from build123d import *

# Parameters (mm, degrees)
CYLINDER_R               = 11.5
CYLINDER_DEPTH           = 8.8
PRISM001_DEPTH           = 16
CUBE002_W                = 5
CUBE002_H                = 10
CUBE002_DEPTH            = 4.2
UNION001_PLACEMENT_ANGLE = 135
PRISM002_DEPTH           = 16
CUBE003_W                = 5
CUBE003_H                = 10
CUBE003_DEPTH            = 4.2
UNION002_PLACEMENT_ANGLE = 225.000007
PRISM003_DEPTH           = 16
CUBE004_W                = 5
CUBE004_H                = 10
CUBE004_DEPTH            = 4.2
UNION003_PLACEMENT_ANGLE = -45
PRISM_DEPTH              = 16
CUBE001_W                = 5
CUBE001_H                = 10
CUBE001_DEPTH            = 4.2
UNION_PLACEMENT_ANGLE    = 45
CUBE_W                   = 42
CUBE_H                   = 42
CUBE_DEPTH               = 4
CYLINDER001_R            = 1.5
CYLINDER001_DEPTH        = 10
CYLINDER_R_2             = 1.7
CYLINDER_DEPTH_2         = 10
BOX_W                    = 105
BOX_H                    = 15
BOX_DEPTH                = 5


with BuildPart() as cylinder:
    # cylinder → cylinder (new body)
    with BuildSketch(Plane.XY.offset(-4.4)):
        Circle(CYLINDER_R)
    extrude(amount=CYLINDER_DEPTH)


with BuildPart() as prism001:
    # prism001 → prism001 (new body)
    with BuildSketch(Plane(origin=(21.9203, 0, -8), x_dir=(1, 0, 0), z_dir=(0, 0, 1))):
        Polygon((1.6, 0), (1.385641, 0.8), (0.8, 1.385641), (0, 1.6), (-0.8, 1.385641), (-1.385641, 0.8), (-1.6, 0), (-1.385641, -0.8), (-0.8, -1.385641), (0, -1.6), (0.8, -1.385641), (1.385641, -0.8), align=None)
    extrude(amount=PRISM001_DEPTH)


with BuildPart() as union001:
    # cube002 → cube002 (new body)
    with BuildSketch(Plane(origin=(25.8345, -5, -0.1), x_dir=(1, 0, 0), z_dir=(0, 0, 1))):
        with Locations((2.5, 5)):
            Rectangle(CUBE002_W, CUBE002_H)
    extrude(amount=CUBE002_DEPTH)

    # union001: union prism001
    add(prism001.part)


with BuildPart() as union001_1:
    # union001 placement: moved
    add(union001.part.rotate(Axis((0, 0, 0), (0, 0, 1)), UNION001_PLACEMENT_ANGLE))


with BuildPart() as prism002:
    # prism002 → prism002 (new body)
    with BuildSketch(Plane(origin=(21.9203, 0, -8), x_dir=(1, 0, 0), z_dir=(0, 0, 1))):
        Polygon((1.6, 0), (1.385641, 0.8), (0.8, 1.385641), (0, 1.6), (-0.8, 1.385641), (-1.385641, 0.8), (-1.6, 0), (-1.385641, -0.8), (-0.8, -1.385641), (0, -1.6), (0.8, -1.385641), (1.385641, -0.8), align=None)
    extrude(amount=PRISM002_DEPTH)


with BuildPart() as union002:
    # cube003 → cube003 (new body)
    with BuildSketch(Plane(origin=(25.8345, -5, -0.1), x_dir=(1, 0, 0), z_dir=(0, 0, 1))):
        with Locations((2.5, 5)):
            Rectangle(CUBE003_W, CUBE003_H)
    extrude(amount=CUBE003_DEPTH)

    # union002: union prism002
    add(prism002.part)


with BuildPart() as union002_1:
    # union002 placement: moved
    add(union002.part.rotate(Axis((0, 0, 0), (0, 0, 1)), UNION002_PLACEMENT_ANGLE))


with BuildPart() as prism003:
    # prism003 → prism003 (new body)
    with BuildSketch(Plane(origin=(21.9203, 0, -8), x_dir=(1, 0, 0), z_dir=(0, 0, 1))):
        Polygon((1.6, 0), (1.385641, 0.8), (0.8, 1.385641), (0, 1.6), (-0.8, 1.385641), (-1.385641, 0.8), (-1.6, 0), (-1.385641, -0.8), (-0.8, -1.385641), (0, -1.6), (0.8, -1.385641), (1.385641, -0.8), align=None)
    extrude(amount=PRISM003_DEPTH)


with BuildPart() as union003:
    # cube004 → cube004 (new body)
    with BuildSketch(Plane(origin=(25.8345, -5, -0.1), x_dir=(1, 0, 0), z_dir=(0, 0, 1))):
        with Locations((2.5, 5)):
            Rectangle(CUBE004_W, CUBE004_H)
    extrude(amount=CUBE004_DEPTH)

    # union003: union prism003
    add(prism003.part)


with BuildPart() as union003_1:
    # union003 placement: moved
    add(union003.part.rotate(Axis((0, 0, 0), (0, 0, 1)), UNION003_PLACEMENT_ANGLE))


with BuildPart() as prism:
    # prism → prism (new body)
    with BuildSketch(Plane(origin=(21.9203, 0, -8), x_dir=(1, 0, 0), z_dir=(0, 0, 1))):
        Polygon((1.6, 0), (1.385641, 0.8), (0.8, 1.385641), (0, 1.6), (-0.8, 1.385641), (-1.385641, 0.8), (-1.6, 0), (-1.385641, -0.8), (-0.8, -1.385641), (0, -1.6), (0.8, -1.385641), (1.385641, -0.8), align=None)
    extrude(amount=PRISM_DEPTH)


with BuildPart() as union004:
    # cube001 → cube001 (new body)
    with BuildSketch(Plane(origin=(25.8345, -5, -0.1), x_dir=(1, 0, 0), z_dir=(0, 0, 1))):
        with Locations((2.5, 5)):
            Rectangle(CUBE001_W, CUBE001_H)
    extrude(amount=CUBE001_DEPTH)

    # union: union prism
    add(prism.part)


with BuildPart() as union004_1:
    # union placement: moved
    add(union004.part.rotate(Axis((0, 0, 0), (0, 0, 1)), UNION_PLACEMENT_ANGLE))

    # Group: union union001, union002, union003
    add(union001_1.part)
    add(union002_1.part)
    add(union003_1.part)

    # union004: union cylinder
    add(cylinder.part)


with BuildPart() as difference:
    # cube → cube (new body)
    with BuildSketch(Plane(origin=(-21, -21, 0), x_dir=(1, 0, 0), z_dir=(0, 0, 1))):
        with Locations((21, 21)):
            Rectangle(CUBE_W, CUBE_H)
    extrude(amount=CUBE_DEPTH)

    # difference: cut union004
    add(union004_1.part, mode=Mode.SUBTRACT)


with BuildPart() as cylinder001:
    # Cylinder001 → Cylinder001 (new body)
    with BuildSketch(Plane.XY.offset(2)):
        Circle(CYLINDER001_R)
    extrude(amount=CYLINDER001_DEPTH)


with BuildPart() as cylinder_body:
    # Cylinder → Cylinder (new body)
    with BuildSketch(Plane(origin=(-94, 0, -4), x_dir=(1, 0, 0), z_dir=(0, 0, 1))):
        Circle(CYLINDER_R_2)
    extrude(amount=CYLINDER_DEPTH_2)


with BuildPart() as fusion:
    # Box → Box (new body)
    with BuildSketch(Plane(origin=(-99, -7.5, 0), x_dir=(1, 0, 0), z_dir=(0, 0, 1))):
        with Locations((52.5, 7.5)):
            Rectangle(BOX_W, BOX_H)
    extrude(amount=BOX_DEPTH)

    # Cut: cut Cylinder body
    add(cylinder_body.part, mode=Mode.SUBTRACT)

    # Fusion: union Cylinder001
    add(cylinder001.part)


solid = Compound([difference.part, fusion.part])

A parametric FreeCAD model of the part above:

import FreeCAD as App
import Part
import Sketcher

V = App.Vector
Q = App.Units.Quantity

doc = App.newDocument("Part")
body = doc.addObject("PartDesign::Body", "Body")

sketch1 = body.newObject("Sketcher::SketchObject", "Sketch")
sketch1.AttachmentSupport = (doc.getObject("XY_Plane"), [""])
sketch1.MapMode = "FlatFace"
sketch1.AttachmentOffset = App.Placement(V(0, 0, -4.4), App.Rotation())
sketch1.addGeometry(Part.Circle(V(0, 0, 0), V(0, 0, 1), 12), False)
sketch1.addConstraint(Sketcher.Constraint("Coincident", 0, 3, -1, 1))
sketch1.addConstraint(Sketcher.Constraint("Diameter", 0, Q("23 mm")))
pad1 = body.newObject("PartDesign::Pad", "Pad")
pad1.Profile = sketch1
pad1.Length = 8.8
body2 = doc.addObject("PartDesign::Body", "Body001")

sketch2 = body2.newObject("Sketcher::SketchObject", "Sketch001")
sketch2.AttachmentSupport = (doc.getObject("XY_Plane001"), [""])
sketch2.MapMode = "FlatFace"
sketch2.AttachmentOffset = App.Placement(V(0, 0, -8), App.Rotation())
sketch2.addGeometry(Part.LineSegment(V(23.5, 0, 0), V(23.3, 0.8, 0)), False)
sketch2.addGeometry(Part.LineSegment(V(23.3, 0.8, 0), V(22.7, 1.4, 0)), False)
sketch2.addGeometry(Part.LineSegment(V(22.7, 1.4, 0), V(21.9, 1.6, 0)), False)
sketch2.addGeometry(Part.LineSegment(V(21.9, 1.6, 0), V(21.1, 1.4, 0)), False)
sketch2.addGeometry(Part.LineSegment(V(21.1, 1.4, 0), V(20.5, 0.8, 0)), False)
sketch2.addGeometry(Part.LineSegment(V(20.5, 0.8, 0), V(20.3, 0, 0)), False)
sketch2.addGeometry(Part.LineSegment(V(20.3, 0, 0), V(20.5, -0.8, 0)), False)
sketch2.addGeometry(Part.LineSegment(V(20.5, -0.8, 0), V(21.1, -1.4, 0)), False)
sketch2.addGeometry(Part.LineSegment(V(21.1, -1.4, 0), V(21.9, -1.6, 0)), False)
sketch2.addGeometry(Part.LineSegment(V(21.9, -1.6, 0), V(22.7, -1.4, 0)), False)
sketch2.addGeometry(Part.LineSegment(V(22.7, -1.4, 0), V(23.3, -0.8, 0)), False)
sketch2.addGeometry(Part.LineSegment(V(23.3, -0.8, 0), V(23.5, 0, 0)), False)
sketch2.addConstraint(Sketcher.Constraint("Coincident", 0, 2, 1, 1))
sketch2.addConstraint(Sketcher.Constraint("Coincident", 1, 2, 2, 1))
sketch2.addConstraint(Sketcher.Constraint("Coincident", 2, 2, 3, 1))
sketch2.addConstraint(Sketcher.Constraint("Coincident", 3, 2, 4, 1))
sketch2.addConstraint(Sketcher.Constraint("Coincident", 4, 2, 5, 1))
sketch2.addConstraint(Sketcher.Constraint("Coincident", 5, 2, 6, 1))
sketch2.addConstraint(Sketcher.Constraint("Coincident", 6, 2, 7, 1))
sketch2.addConstraint(Sketcher.Constraint("Coincident", 7, 2, 8, 1))
sketch2.addConstraint(Sketcher.Constraint("Coincident", 8, 2, 9, 1))
sketch2.addConstraint(Sketcher.Constraint("Coincident", 9, 2, 10, 1))
sketch2.addConstraint(Sketcher.Constraint("Coincident", 10, 2, 11, 1))
sketch2.addConstraint(Sketcher.Constraint("Coincident", 11, 2, 0, 1))
sketch2.addConstraint(Sketcher.Constraint("Symmetric", 4, 2, 6, 2, -1))
sketch2.addConstraint(Sketcher.Constraint("Symmetric", 3, 2, 7, 2, -1))
sketch2.addConstraint(Sketcher.Constraint("Symmetric", 2, 2, 8, 2, -1))
sketch2.addConstraint(Sketcher.Constraint("Symmetric", 1, 2, 9, 2, -1))
sketch2.addConstraint(Sketcher.Constraint("Symmetric", 0, 2, 10, 2, -1))
sketch2.addConstraint(Sketcher.Constraint("PointOnObject", 5, 2, -1))
sketch2.addConstraint(Sketcher.Constraint("PointOnObject", 11, 2, -1))
sketch2.addConstraint(Sketcher.Constraint("Perpendicular", 0, 3))
sketch2.addConstraint(Sketcher.Constraint("Perpendicular", 1, 4))
sketch2.addConstraint(Sketcher.Constraint("Perpendicular", 2, 5))
sketch2.addConstraint(Sketcher.Constraint("Perpendicular", 3, 6))
sketch2.addConstraint(Sketcher.Constraint("Perpendicular", 4, 7))
sketch2.addConstraint(Sketcher.Constraint("Horizontal", 1, 2, 3, 2))
sketch2.addConstraint(Sketcher.Constraint("Horizontal", 0, 2, 4, 2))
sketch2.addConstraint(Sketcher.Constraint("Equal", 0, 1))
sketch2.addConstraint(Sketcher.Constraint("Equal", 1, 2))
sketch2.addConstraint(Sketcher.Constraint("DistanceY", -1, 1, 0, 2, Q("0.8 mm")))
sketch2.addConstraint(Sketcher.Constraint("DistanceY", -1, 1, 2, 2, Q("1.6 mm")))
sketch2.addConstraint(Sketcher.Constraint("DistanceX", -1, 1, 1, 2, Q("22.7203 mm")))
pad2 = body2.newObject("PartDesign::Pad", "Pad001")
pad2.Profile = sketch2
pad2.Length = 16
body3 = doc.addObject("PartDesign::Body", "Body002")
body3.AllowCompound = True

sketch3 = body3.newObject("Sketcher::SketchObject", "Sketch002")
sketch3.AttachmentSupport = (doc.getObject("XY_Plane002"), [""])
sketch3.MapMode = "FlatFace"
sketch3.AttachmentOffset = App.Placement(V(0, 0, -0.1), App.Rotation())
sketch3.addGeometry(Part.LineSegment(V(26, 5, 0), V(26, -5, 0)), False)
sketch3.addGeometry(Part.LineSegment(V(26, -5, 0), V(31, -5, 0)), False)
sketch3.addGeometry(Part.LineSegment(V(31, -5, 0), V(31, 5, 0)), False)
sketch3.addGeometry(Part.LineSegment(V(31, 5, 0), V(26, 5, 0)), False)
sketch3.addConstraint(Sketcher.Constraint("Coincident", 0, 2, 1, 1))
sketch3.addConstraint(Sketcher.Constraint("Coincident", 1, 2, 2, 1))
sketch3.addConstraint(Sketcher.Constraint("Coincident", 2, 2, 3, 1))
sketch3.addConstraint(Sketcher.Constraint("Coincident", 3, 2, 0, 1))
sketch3.addConstraint(Sketcher.Constraint("Vertical", 0))
sketch3.addConstraint(Sketcher.Constraint("Horizontal", 1))
sketch3.addConstraint(Sketcher.Constraint("Vertical", 2))
sketch3.addConstraint(Sketcher.Constraint("Horizontal", 3))
sketch3.addConstraint(Sketcher.Constraint("DistanceX", 1, 1, 1, 2, Q("5 mm")))
sketch3.addConstraint(Sketcher.Constraint("DistanceY", 0, 2, 0, 1, Q("10 mm")))
sketch3.addConstraint(Sketcher.Constraint("DistanceY", 0, 2, -1, 1, Q("5 mm")))
sketch3.addConstraint(Sketcher.Constraint("DistanceX", -1, 1, 0, 2, Q("25.8345 mm")))
pad3 = body3.newObject("PartDesign::Pad", "Pad002")
pad3.Profile = sketch3
pad3.Length = 4.2
doc.recompute()

boolean = body3.newObject("PartDesign::Boolean", "Boolean")
boolean.Type = "Fuse"
boolean.addObjects([body2])
body4 = doc.addObject("PartDesign::Body", "Body003")
body4.AllowCompound = True
doc.recompute()

body3.Placement = App.Placement(V(0, 0, 0), App.Rotation(V(0, 0, 1), 135))
boolean2 = body4.newObject("PartDesign::Boolean", "Boolean001")
boolean2.Type = "Fuse"
boolean2.addObjects([body3])
body5 = doc.addObject("PartDesign::Body", "Body004")

sketch4 = body5.newObject("Sketcher::SketchObject", "Sketch003")
sketch4.AttachmentSupport = (doc.getObject("XY_Plane004"), [""])
sketch4.MapMode = "FlatFace"
sketch4.AttachmentOffset = App.Placement(V(0, 0, -8), App.Rotation())
sketch4.addGeometry(Part.LineSegment(V(23.5, 0, 0), V(23.3, 0.8, 0)), False)
sketch4.addGeometry(Part.LineSegment(V(23.3, 0.8, 0), V(22.7, 1.4, 0)), False)
sketch4.addGeometry(Part.LineSegment(V(22.7, 1.4, 0), V(21.9, 1.6, 0)), False)
sketch4.addGeometry(Part.LineSegment(V(21.9, 1.6, 0), V(21.1, 1.4, 0)), False)
sketch4.addGeometry(Part.LineSegment(V(21.1, 1.4, 0), V(20.5, 0.8, 0)), False)
sketch4.addGeometry(Part.LineSegment(V(20.5, 0.8, 0), V(20.3, 0, 0)), False)
sketch4.addGeometry(Part.LineSegment(V(20.3, 0, 0), V(20.5, -0.8, 0)), False)
sketch4.addGeometry(Part.LineSegment(V(20.5, -0.8, 0), V(21.1, -1.4, 0)), False)
sketch4.addGeometry(Part.LineSegment(V(21.1, -1.4, 0), V(21.9, -1.6, 0)), False)
sketch4.addGeometry(Part.LineSegment(V(21.9, -1.6, 0), V(22.7, -1.4, 0)), False)
sketch4.addGeometry(Part.LineSegment(V(22.7, -1.4, 0), V(23.3, -0.8, 0)), False)
sketch4.addGeometry(Part.LineSegment(V(23.3, -0.8, 0), V(23.5, 0, 0)), False)
sketch4.addConstraint(Sketcher.Constraint("Coincident", 0, 2, 1, 1))
sketch4.addConstraint(Sketcher.Constraint("Coincident", 1, 2, 2, 1))
sketch4.addConstraint(Sketcher.Constraint("Coincident", 2, 2, 3, 1))
sketch4.addConstraint(Sketcher.Constraint("Coincident", 3, 2, 4, 1))
sketch4.addConstraint(Sketcher.Constraint("Coincident", 4, 2, 5, 1))
sketch4.addConstraint(Sketcher.Constraint("Coincident", 5, 2, 6, 1))
sketch4.addConstraint(Sketcher.Constraint("Coincident", 6, 2, 7, 1))
sketch4.addConstraint(Sketcher.Constraint("Coincident", 7, 2, 8, 1))
sketch4.addConstraint(Sketcher.Constraint("Coincident", 8, 2, 9, 1))
sketch4.addConstraint(Sketcher.Constraint("Coincident", 9, 2, 10, 1))
sketch4.addConstraint(Sketcher.Constraint("Coincident", 10, 2, 11, 1))
sketch4.addConstraint(Sketcher.Constraint("Coincident", 11, 2, 0, 1))
sketch4.addConstraint(Sketcher.Constraint("Symmetric", 4, 2, 6, 2, -1))
sketch4.addConstraint(Sketcher.Constraint("Symmetric", 3, 2, 7, 2, -1))
sketch4.addConstraint(Sketcher.Constraint("Symmetric", 2, 2, 8, 2, -1))
sketch4.addConstraint(Sketcher.Constraint("Symmetric", 1, 2, 9, 2, -1))
sketch4.addConstraint(Sketcher.Constraint("Symmetric", 0, 2, 10, 2, -1))
sketch4.addConstraint(Sketcher.Constraint("PointOnObject", 5, 2, -1))
sketch4.addConstraint(Sketcher.Constraint("PointOnObject", 11, 2, -1))
sketch4.addConstraint(Sketcher.Constraint("Perpendicular", 0, 3))
sketch4.addConstraint(Sketcher.Constraint("Perpendicular", 1, 4))
sketch4.addConstraint(Sketcher.Constraint("Perpendicular", 2, 5))
sketch4.addConstraint(Sketcher.Constraint("Perpendicular", 3, 6))
sketch4.addConstraint(Sketcher.Constraint("Perpendicular", 4, 7))
sketch4.addConstraint(Sketcher.Constraint("Horizontal", 1, 2, 3, 2))
sketch4.addConstraint(Sketcher.Constraint("Horizontal", 0, 2, 4, 2))
sketch4.addConstraint(Sketcher.Constraint("Equal", 0, 1))
sketch4.addConstraint(Sketcher.Constraint("Equal", 1, 2))
sketch4.addConstraint(Sketcher.Constraint("DistanceY", -1, 1, 0, 2, Q("0.8 mm")))
sketch4.addConstraint(Sketcher.Constraint("DistanceY", -1, 1, 2, 2, Q("1.6 mm")))
sketch4.addConstraint(Sketcher.Constraint("DistanceX", -1, 1, 1, 2, Q("22.7203 mm")))
pad4 = body5.newObject("PartDesign::Pad", "Pad003")
pad4.Profile = sketch4
pad4.Length = 16
body6 = doc.addObject("PartDesign::Body", "Body005")
body6.AllowCompound = True

sketch5 = body6.newObject("Sketcher::SketchObject", "Sketch004")
sketch5.AttachmentSupport = (doc.getObject("XY_Plane005"), [""])
sketch5.MapMode = "FlatFace"
sketch5.AttachmentOffset = App.Placement(V(0, 0, -0.1), App.Rotation())
sketch5.addGeometry(Part.LineSegment(V(26, 5, 0), V(26, -5, 0)), False)
sketch5.addGeometry(Part.LineSegment(V(26, -5, 0), V(31, -5, 0)), False)
sketch5.addGeometry(Part.LineSegment(V(31, -5, 0), V(31, 5, 0)), False)
sketch5.addGeometry(Part.LineSegment(V(31, 5, 0), V(26, 5, 0)), False)
sketch5.addConstraint(Sketcher.Constraint("Coincident", 0, 2, 1, 1))
sketch5.addConstraint(Sketcher.Constraint("Coincident", 1, 2, 2, 1))
sketch5.addConstraint(Sketcher.Constraint("Coincident", 2, 2, 3, 1))
sketch5.addConstraint(Sketcher.Constraint("Coincident", 3, 2, 0, 1))
sketch5.addConstraint(Sketcher.Constraint("Vertical", 0))
sketch5.addConstraint(Sketcher.Constraint("Horizontal", 1))
sketch5.addConstraint(Sketcher.Constraint("Vertical", 2))
sketch5.addConstraint(Sketcher.Constraint("Horizontal", 3))
sketch5.addConstraint(Sketcher.Constraint("DistanceX", 1, 1, 1, 2, Q("5 mm")))
sketch5.addConstraint(Sketcher.Constraint("DistanceY", 0, 2, 0, 1, Q("10 mm")))
sketch5.addConstraint(Sketcher.Constraint("DistanceY", 0, 2, -1, 1, Q("5 mm")))
sketch5.addConstraint(Sketcher.Constraint("DistanceX", -1, 1, 0, 2, Q("25.8345 mm")))
pad5 = body6.newObject("PartDesign::Pad", "Pad004")
pad5.Profile = sketch5
pad5.Length = 4.2
doc.recompute()

boolean3 = body6.newObject("PartDesign::Boolean", "Boolean002")
boolean3.Type = "Fuse"
boolean3.addObjects([body5])
body7 = doc.addObject("PartDesign::Body", "Body006")
body7.AllowCompound = True
doc.recompute()

body6.Placement = App.Placement(V(0, 0, 0), App.Rotation(V(0, 0, 1), 225.000007))
boolean4 = body7.newObject("PartDesign::Boolean", "Boolean003")
boolean4.Type = "Fuse"
boolean4.addObjects([body6])
body8 = doc.addObject("PartDesign::Body", "Body007")

sketch6 = body8.newObject("Sketcher::SketchObject", "Sketch005")
sketch6.AttachmentSupport = (doc.getObject("XY_Plane007"), [""])
sketch6.MapMode = "FlatFace"
sketch6.AttachmentOffset = App.Placement(V(0, 0, -8), App.Rotation())
sketch6.addGeometry(Part.LineSegment(V(23.5, 0, 0), V(23.3, 0.8, 0)), False)
sketch6.addGeometry(Part.LineSegment(V(23.3, 0.8, 0), V(22.7, 1.4, 0)), False)
sketch6.addGeometry(Part.LineSegment(V(22.7, 1.4, 0), V(21.9, 1.6, 0)), False)
sketch6.addGeometry(Part.LineSegment(V(21.9, 1.6, 0), V(21.1, 1.4, 0)), False)
sketch6.addGeometry(Part.LineSegment(V(21.1, 1.4, 0), V(20.5, 0.8, 0)), False)
sketch6.addGeometry(Part.LineSegment(V(20.5, 0.8, 0), V(20.3, 0, 0)), False)
sketch6.addGeometry(Part.LineSegment(V(20.3, 0, 0), V(20.5, -0.8, 0)), False)
sketch6.addGeometry(Part.LineSegment(V(20.5, -0.8, 0), V(21.1, -1.4, 0)), False)
sketch6.addGeometry(Part.LineSegment(V(21.1, -1.4, 0), V(21.9, -1.6, 0)), False)
sketch6.addGeometry(Part.LineSegment(V(21.9, -1.6, 0), V(22.7, -1.4, 0)), False)
sketch6.addGeometry(Part.LineSegment(V(22.7, -1.4, 0), V(23.3, -0.8, 0)), False)
sketch6.addGeometry(Part.LineSegment(V(23.3, -0.8, 0), V(23.5, 0, 0)), False)
sketch6.addConstraint(Sketcher.Constraint("Coincident", 0, 2, 1, 1))
sketch6.addConstraint(Sketcher.Constraint("Coincident", 1, 2, 2, 1))
sketch6.addConstraint(Sketcher.Constraint("Coincident", 2, 2, 3, 1))
sketch6.addConstraint(Sketcher.Constraint("Coincident", 3, 2, 4, 1))
sketch6.addConstraint(Sketcher.Constraint("Coincident", 4, 2, 5, 1))
sketch6.addConstraint(Sketcher.Constraint("Coincident", 5, 2, 6, 1))
sketch6.addConstraint(Sketcher.Constraint("Coincident", 6, 2, 7, 1))
sketch6.addConstraint(Sketcher.Constraint("Coincident", 7, 2, 8, 1))
sketch6.addConstraint(Sketcher.Constraint("Coincident", 8, 2, 9, 1))
sketch6.addConstraint(Sketcher.Constraint("Coincident", 9, 2, 10, 1))
sketch6.addConstraint(Sketcher.Constraint("Coincident", 10, 2, 11, 1))
sketch6.addConstraint(Sketcher.Constraint("Coincident", 11, 2, 0, 1))
sketch6.addConstraint(Sketcher.Constraint("Symmetric", 4, 2, 6, 2, -1))
sketch6.addConstraint(Sketcher.Constraint("Symmetric", 3, 2, 7, 2, -1))
sketch6.addConstraint(Sketcher.Constraint("Symmetric", 2, 2, 8, 2, -1))
sketch6.addConstraint(Sketcher.Constraint("Symmetric", 1, 2, 9, 2, -1))
sketch6.addConstraint(Sketcher.Constraint("Symmetric", 0, 2, 10, 2, -1))
sketch6.addConstraint(Sketcher.Constraint("PointOnObject", 5, 2, -1))
sketch6.addConstraint(Sketcher.Constraint("PointOnObject", 11, 2, -1))
sketch6.addConstraint(Sketcher.Constraint("Perpendicular", 0, 3))
sketch6.addConstraint(Sketcher.Constraint("Perpendicular", 1, 4))
sketch6.addConstraint(Sketcher.Constraint("Perpendicular", 2, 5))
sketch6.addConstraint(Sketcher.Constraint("Perpendicular", 3, 6))
sketch6.addConstraint(Sketcher.Constraint("Perpendicular", 4, 7))
sketch6.addConstraint(Sketcher.Constraint("Horizontal", 1, 2, 3, 2))
sketch6.addConstraint(Sketcher.Constraint("Horizontal", 0, 2, 4, 2))
sketch6.addConstraint(Sketcher.Constraint("Equal", 0, 1))
sketch6.addConstraint(Sketcher.Constraint("Equal", 1, 2))
sketch6.addConstraint(Sketcher.Constraint("DistanceY", -1, 1, 0, 2, Q("0.8 mm")))
sketch6.addConstraint(Sketcher.Constraint("DistanceY", -1, 1, 2, 2, Q("1.6 mm")))
sketch6.addConstraint(Sketcher.Constraint("DistanceX", -1, 1, 1, 2, Q("22.7203 mm")))
pad6 = body8.newObject("PartDesign::Pad", "Pad005")
pad6.Profile = sketch6
pad6.Length = 16
body9 = doc.addObject("PartDesign::Body", "Body008")
body9.AllowCompound = True

sketch7 = body9.newObject("Sketcher::SketchObject", "Sketch006")
sketch7.AttachmentSupport = (doc.getObject("XY_Plane008"), [""])
sketch7.MapMode = "FlatFace"
sketch7.AttachmentOffset = App.Placement(V(0, 0, -0.1), App.Rotation())
sketch7.addGeometry(Part.LineSegment(V(26, 5, 0), V(26, -5, 0)), False)
sketch7.addGeometry(Part.LineSegment(V(26, -5, 0), V(31, -5, 0)), False)
sketch7.addGeometry(Part.LineSegment(V(31, -5, 0), V(31, 5, 0)), False)
sketch7.addGeometry(Part.LineSegment(V(31, 5, 0), V(26, 5, 0)), False)
sketch7.addConstraint(Sketcher.Constraint("Coincident", 0, 2, 1, 1))
sketch7.addConstraint(Sketcher.Constraint("Coincident", 1, 2, 2, 1))
sketch7.addConstraint(Sketcher.Constraint("Coincident", 2, 2, 3, 1))
sketch7.addConstraint(Sketcher.Constraint("Coincident", 3, 2, 0, 1))
sketch7.addConstraint(Sketcher.Constraint("Vertical", 0))
sketch7.addConstraint(Sketcher.Constraint("Horizontal", 1))
sketch7.addConstraint(Sketcher.Constraint("Vertical", 2))
sketch7.addConstraint(Sketcher.Constraint("Horizontal", 3))
sketch7.addConstraint(Sketcher.Constraint("DistanceX", 1, 1, 1, 2, Q("5 mm")))
sketch7.addConstraint(Sketcher.Constraint("DistanceY", 0, 2, 0, 1, Q("10 mm")))
sketch7.addConstraint(Sketcher.Constraint("DistanceY", 0, 2, -1, 1, Q("5 mm")))
sketch7.addConstraint(Sketcher.Constraint("DistanceX", -1, 1, 0, 2, Q("25.8345 mm")))
pad7 = body9.newObject("PartDesign::Pad", "Pad006")
pad7.Profile = sketch7
pad7.Length = 4.2
doc.recompute()

boolean5 = body9.newObject("PartDesign::Boolean", "Boolean004")
boolean5.Type = "Fuse"
boolean5.addObjects([body8])
body10 = doc.addObject("PartDesign::Body", "Body009")
body10.AllowCompound = True
doc.recompute()

body9.Placement = App.Placement(V(0, 0, 0), App.Rotation(V(0, 0, 1), 315))
boolean6 = body10.newObject("PartDesign::Boolean", "Boolean005")
boolean6.Type = "Fuse"
boolean6.addObjects([body9])
body11 = doc.addObject("PartDesign::Body", "Body010")

sketch8 = body11.newObject("Sketcher::SketchObject", "Sketch007")
sketch8.AttachmentSupport = (doc.getObject("XY_Plane010"), [""])
sketch8.MapMode = "FlatFace"
sketch8.AttachmentOffset = App.Placement(V(0, 0, -8), App.Rotation())
sketch8.addGeometry(Part.LineSegment(V(23.5, 0, 0), V(23.3, 0.8, 0)), False)
sketch8.addGeometry(Part.LineSegment(V(23.3, 0.8, 0), V(22.7, 1.4, 0)), False)
sketch8.addGeometry(Part.LineSegment(V(22.7, 1.4, 0), V(21.9, 1.6, 0)), False)
sketch8.addGeometry(Part.LineSegment(V(21.9, 1.6, 0), V(21.1, 1.4, 0)), False)
sketch8.addGeometry(Part.LineSegment(V(21.1, 1.4, 0), V(20.5, 0.8, 0)), False)
sketch8.addGeometry(Part.LineSegment(V(20.5, 0.8, 0), V(20.3, 0, 0)), False)
sketch8.addGeometry(Part.LineSegment(V(20.3, 0, 0), V(20.5, -0.8, 0)), False)
sketch8.addGeometry(Part.LineSegment(V(20.5, -0.8, 0), V(21.1, -1.4, 0)), False)
sketch8.addGeometry(Part.LineSegment(V(21.1, -1.4, 0), V(21.9, -1.6, 0)), False)
sketch8.addGeometry(Part.LineSegment(V(21.9, -1.6, 0), V(22.7, -1.4, 0)), False)
sketch8.addGeometry(Part.LineSegment(V(22.7, -1.4, 0), V(23.3, -0.8, 0)), False)
sketch8.addGeometry(Part.LineSegment(V(23.3, -0.8, 0), V(23.5, 0, 0)), False)
sketch8.addConstraint(Sketcher.Constraint("Coincident", 0, 2, 1, 1))
sketch8.addConstraint(Sketcher.Constraint("Coincident", 1, 2, 2, 1))
sketch8.addConstraint(Sketcher.Constraint("Coincident", 2, 2, 3, 1))
sketch8.addConstraint(Sketcher.Constraint("Coincident", 3, 2, 4, 1))
sketch8.addConstraint(Sketcher.Constraint("Coincident", 4, 2, 5, 1))
sketch8.addConstraint(Sketcher.Constraint("Coincident", 5, 2, 6, 1))
sketch8.addConstraint(Sketcher.Constraint("Coincident", 6, 2, 7, 1))
sketch8.addConstraint(Sketcher.Constraint("Coincident", 7, 2, 8, 1))
sketch8.addConstraint(Sketcher.Constraint("Coincident", 8, 2, 9, 1))
sketch8.addConstraint(Sketcher.Constraint("Coincident", 9, 2, 10, 1))
sketch8.addConstraint(Sketcher.Constraint("Coincident", 10, 2, 11, 1))
sketch8.addConstraint(Sketcher.Constraint("Coincident", 11, 2, 0, 1))
sketch8.addConstraint(Sketcher.Constraint("Symmetric", 4, 2, 6, 2, -1))
sketch8.addConstraint(Sketcher.Constraint("Symmetric", 3, 2, 7, 2, -1))
sketch8.addConstraint(Sketcher.Constraint("Symmetric", 2, 2, 8, 2, -1))
sketch8.addConstraint(Sketcher.Constraint("Symmetric", 1, 2, 9, 2, -1))
sketch8.addConstraint(Sketcher.Constraint("Symmetric", 0, 2, 10, 2, -1))
sketch8.addConstraint(Sketcher.Constraint("PointOnObject", 5, 2, -1))
sketch8.addConstraint(Sketcher.Constraint("PointOnObject", 11, 2, -1))
sketch8.addConstraint(Sketcher.Constraint("Perpendicular", 0, 3))
sketch8.addConstraint(Sketcher.Constraint("Perpendicular", 1, 4))
sketch8.addConstraint(Sketcher.Constraint("Perpendicular", 2, 5))
sketch8.addConstraint(Sketcher.Constraint("Perpendicular", 3, 6))
sketch8.addConstraint(Sketcher.Constraint("Perpendicular", 4, 7))
sketch8.addConstraint(Sketcher.Constraint("Horizontal", 1, 2, 3, 2))
sketch8.addConstraint(Sketcher.Constraint("Horizontal", 0, 2, 4, 2))
sketch8.addConstraint(Sketcher.Constraint("Equal", 0, 1))
sketch8.addConstraint(Sketcher.Constraint("Equal", 1, 2))
sketch8.addConstraint(Sketcher.Constraint("DistanceY", -1, 1, 0, 2, Q("0.8 mm")))
sketch8.addConstraint(Sketcher.Constraint("DistanceY", -1, 1, 2, 2, Q("1.6 mm")))
sketch8.addConstraint(Sketcher.Constraint("DistanceX", -1, 1, 1, 2, Q("22.7203 mm")))
pad8 = body11.newObject("PartDesign::Pad", "Pad007")
pad8.Profile = sketch8
pad8.Length = 16
body12 = doc.addObject("PartDesign::Body", "Body011")
body12.AllowCompound = True

sketch9 = body12.newObject("Sketcher::SketchObject", "Sketch008")
sketch9.AttachmentSupport = (doc.getObject("XY_Plane011"), [""])
sketch9.MapMode = "FlatFace"
sketch9.AttachmentOffset = App.Placement(V(0, 0, -0.1), App.Rotation())
sketch9.addGeometry(Part.LineSegment(V(26, 5, 0), V(26, -5, 0)), False)
sketch9.addGeometry(Part.LineSegment(V(26, -5, 0), V(31, -5, 0)), False)
sketch9.addGeometry(Part.LineSegment(V(31, -5, 0), V(31, 5, 0)), False)
sketch9.addGeometry(Part.LineSegment(V(31, 5, 0), V(26, 5, 0)), False)
sketch9.addConstraint(Sketcher.Constraint("Coincident", 0, 2, 1, 1))
sketch9.addConstraint(Sketcher.Constraint("Coincident", 1, 2, 2, 1))
sketch9.addConstraint(Sketcher.Constraint("Coincident", 2, 2, 3, 1))
sketch9.addConstraint(Sketcher.Constraint("Coincident", 3, 2, 0, 1))
sketch9.addConstraint(Sketcher.Constraint("Vertical", 0))
sketch9.addConstraint(Sketcher.Constraint("Horizontal", 1))
sketch9.addConstraint(Sketcher.Constraint("Vertical", 2))
sketch9.addConstraint(Sketcher.Constraint("Horizontal", 3))
sketch9.addConstraint(Sketcher.Constraint("DistanceX", 1, 1, 1, 2, Q("5 mm")))
sketch9.addConstraint(Sketcher.Constraint("DistanceY", 0, 2, 0, 1, Q("10 mm")))
sketch9.addConstraint(Sketcher.Constraint("DistanceY", 0, 2, -1, 1, Q("5 mm")))
sketch9.addConstraint(Sketcher.Constraint("DistanceX", -1, 1, 0, 2, Q("25.8345 mm")))
pad9 = body12.newObject("PartDesign::Pad", "Pad008")
pad9.Profile = sketch9
pad9.Length = 4.2
doc.recompute()

boolean7 = body12.newObject("PartDesign::Boolean", "Boolean006")
boolean7.Type = "Fuse"
boolean7.addObjects([body11])
body13 = doc.addObject("PartDesign::Body", "Body012")
body13.AllowCompound = True
doc.recompute()

body12.Placement = App.Placement(V(0, 0, 0), App.Rotation(V(0, 0, 1), 45))
boolean8 = body13.newObject("PartDesign::Boolean", "Boolean007")
boolean8.Type = "Fuse"
boolean8.addObjects([body12])
doc.recompute()

boolean9 = body13.newObject("PartDesign::Boolean", "Boolean008")
boolean9.Type = "Fuse"
boolean9.addObjects([body4])
doc.recompute()

boolean10 = body13.newObject("PartDesign::Boolean", "Boolean009")
boolean10.Type = "Fuse"
boolean10.addObjects([body7])
doc.recompute()

boolean11 = body13.newObject("PartDesign::Boolean", "Boolean010")
boolean11.Type = "Fuse"
boolean11.addObjects([body10])
doc.recompute()

boolean12 = body13.newObject("PartDesign::Boolean", "Boolean011")
boolean12.Type = "Fuse"
boolean12.addObjects([body])
body14 = doc.addObject("PartDesign::Body", "Body013")

sketch10 = body14.newObject("Sketcher::SketchObject", "Sketch009")
sketch10.AttachmentSupport = (doc.getObject("XY_Plane013"), [""])
sketch10.MapMode = "FlatFace"
sketch10.addGeometry(Part.LineSegment(V(-21, 21, 0), V(-21, -21, 0)), False)
sketch10.addGeometry(Part.LineSegment(V(-21, -21, 0), V(21, -21, 0)), False)
sketch10.addGeometry(Part.LineSegment(V(21, -21, 0), V(21, 21, 0)), False)
sketch10.addGeometry(Part.LineSegment(V(21, 21, 0), V(-21, 21, 0)), False)
sketch10.addConstraint(Sketcher.Constraint("Coincident", 0, 2, 1, 1))
sketch10.addConstraint(Sketcher.Constraint("Coincident", 1, 2, 2, 1))
sketch10.addConstraint(Sketcher.Constraint("Coincident", 2, 2, 3, 1))
sketch10.addConstraint(Sketcher.Constraint("Coincident", 3, 2, 0, 1))
sketch10.addConstraint(Sketcher.Constraint("Vertical", 0))
sketch10.addConstraint(Sketcher.Constraint("Horizontal", 1))
sketch10.addConstraint(Sketcher.Constraint("Vertical", 2))
sketch10.addConstraint(Sketcher.Constraint("Horizontal", 3))
sketch10.addConstraint(Sketcher.Constraint("Symmetric", 0, 2, 2, 2, -1, 1))
sketch10.addConstraint(Sketcher.Constraint("Equal", 3, 0))
sketch10.addConstraint(Sketcher.Constraint("DistanceX", 1, 1, 1, 2, Q("42 mm")))
pad10 = body14.newObject("PartDesign::Pad", "Pad009")
pad10.Profile = sketch10
pad10.Length = 4
doc.recompute()

boolean13 = body14.newObject("PartDesign::Boolean", "Boolean012")
boolean13.Type = "Cut"
boolean13.addObjects([body13])
body15 = doc.addObject("PartDesign::Body", "Body014")

sketch11 = body15.newObject("Sketcher::SketchObject", "Sketch010")
sketch11.AttachmentSupport = (doc.getObject("XY_Plane014"), [""])
sketch11.MapMode = "FlatFace"
sketch11.AttachmentOffset = App.Placement(V(0, 0, 2), App.Rotation())
sketch11.addGeometry(Part.Circle(V(0, 0, 0), V(0, 0, 1), 1.5), False)
sketch11.addConstraint(Sketcher.Constraint("Coincident", 0, 3, -1, 1))
sketch11.addConstraint(Sketcher.Constraint("Diameter", 0, Q("3 mm")))
pad11 = body15.newObject("PartDesign::Pad", "Pad010")
pad11.Profile = sketch11
pad11.Length = 10
body16 = doc.addObject("PartDesign::Body", "Body015")

sketch12 = body16.newObject("Sketcher::SketchObject", "Sketch011")
sketch12.AttachmentSupport = (doc.getObject("XY_Plane015"), [""])
sketch12.MapMode = "FlatFace"
sketch12.AttachmentOffset = App.Placement(V(0, 0, -4), App.Rotation())
sketch12.addGeometry(Part.Circle(V(-94, 0, 0), V(0, 0, 1), 1.7), False)
sketch12.addConstraint(Sketcher.Constraint("PointOnObject", 0, 3, -1))
sketch12.addConstraint(Sketcher.Constraint("Diameter", 0, Q("3.4 mm")))
sketch12.addConstraint(Sketcher.Constraint("DistanceX", 0, 3, -1, 1, Q("94 mm")))
pad12 = body16.newObject("PartDesign::Pad", "Pad011")
pad12.Profile = sketch12
pad12.Length = 10
body17 = doc.addObject("PartDesign::Body", "Body016")

sketch13 = body17.newObject("Sketcher::SketchObject", "Sketch012")
sketch13.AttachmentSupport = (doc.getObject("XY_Plane016"), [""])
sketch13.MapMode = "FlatFace"
sketch13.addGeometry(Part.LineSegment(V(-99, 8, 0), V(-99, -8, 0)), False)
sketch13.addGeometry(Part.LineSegment(V(-99, -8, 0), V(6, -8, 0)), False)
sketch13.addGeometry(Part.LineSegment(V(6, -8, 0), V(6, 8, 0)), False)
sketch13.addGeometry(Part.LineSegment(V(6, 8, 0), V(-99, 8, 0)), False)
sketch13.addConstraint(Sketcher.Constraint("Coincident", 0, 2, 1, 1))
sketch13.addConstraint(Sketcher.Constraint("Coincident", 1, 2, 2, 1))
sketch13.addConstraint(Sketcher.Constraint("Coincident", 2, 2, 3, 1))
sketch13.addConstraint(Sketcher.Constraint("Coincident", 3, 2, 0, 1))
sketch13.addConstraint(Sketcher.Constraint("Vertical", 0))
sketch13.addConstraint(Sketcher.Constraint("Horizontal", 1))
sketch13.addConstraint(Sketcher.Constraint("Vertical", 2))
sketch13.addConstraint(Sketcher.Constraint("Horizontal", 3))
sketch13.addConstraint(Sketcher.Constraint("DistanceX", 1, 1, 1, 2, Q("105 mm")))
sketch13.addConstraint(Sketcher.Constraint("DistanceY", 0, 2, 0, 1, Q("15 mm")))
sketch13.addConstraint(Sketcher.Constraint("DistanceX", 0, 2, -1, 1, Q("99 mm")))
sketch13.addConstraint(Sketcher.Constraint("DistanceY", 0, 2, -1, 1, Q("7.5 mm")))
pad13 = body17.newObject("PartDesign::Pad", "Pad012")
pad13.Profile = sketch13
pad13.Length = 5
doc.recompute()

boolean14 = body17.newObject("PartDesign::Boolean", "Boolean013")
boolean14.Type = "Cut"
boolean14.addObjects([body16])
doc.recompute()

boolean15 = body17.newObject("PartDesign::Boolean", "Boolean014")
boolean15.Type = "Fuse"
boolean15.addObjects([body15])

doc.recompute()
